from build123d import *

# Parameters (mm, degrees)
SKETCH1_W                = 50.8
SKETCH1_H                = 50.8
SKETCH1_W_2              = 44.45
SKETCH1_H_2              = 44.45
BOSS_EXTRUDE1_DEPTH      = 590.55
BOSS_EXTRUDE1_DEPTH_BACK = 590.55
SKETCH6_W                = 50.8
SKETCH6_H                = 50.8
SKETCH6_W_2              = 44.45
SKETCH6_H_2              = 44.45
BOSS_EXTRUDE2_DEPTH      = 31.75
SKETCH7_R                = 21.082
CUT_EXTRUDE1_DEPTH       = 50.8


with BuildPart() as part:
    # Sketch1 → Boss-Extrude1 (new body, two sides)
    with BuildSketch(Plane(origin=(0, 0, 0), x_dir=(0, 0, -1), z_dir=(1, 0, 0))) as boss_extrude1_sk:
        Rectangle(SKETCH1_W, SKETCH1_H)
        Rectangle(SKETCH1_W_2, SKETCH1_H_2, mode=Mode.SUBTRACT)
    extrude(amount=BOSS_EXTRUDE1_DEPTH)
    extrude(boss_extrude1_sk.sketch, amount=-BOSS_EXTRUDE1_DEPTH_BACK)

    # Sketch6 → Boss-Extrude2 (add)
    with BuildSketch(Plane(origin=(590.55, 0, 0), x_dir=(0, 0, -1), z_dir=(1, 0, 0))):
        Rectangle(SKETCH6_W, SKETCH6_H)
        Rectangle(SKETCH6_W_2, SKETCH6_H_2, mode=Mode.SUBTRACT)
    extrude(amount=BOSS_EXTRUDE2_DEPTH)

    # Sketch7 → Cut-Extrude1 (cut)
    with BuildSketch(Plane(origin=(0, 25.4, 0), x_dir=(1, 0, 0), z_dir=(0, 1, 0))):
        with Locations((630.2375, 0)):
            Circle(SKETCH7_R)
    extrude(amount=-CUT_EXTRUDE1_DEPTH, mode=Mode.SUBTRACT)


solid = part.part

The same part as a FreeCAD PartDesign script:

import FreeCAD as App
import Part
import Sketcher
Q = App.Units.Quantity


def add_polygon(sketch, points):
    """Adds a closed chain of lines whose ends are joined by coincident constraints."""
    first, n = sketch.GeometryCount, len(points)
    for a, b in zip(points, points[1:] + points[:1]):
        sketch.addGeometry(Part.LineSegment(App.Vector(*a, 0), App.Vector(*b, 0)), False)
    for i in range(n):
        sketch.addConstraint(Sketcher.Constraint("Coincident", first + i, 2, first + (i + 1) % n, 1))

doc = App.newDocument("Part")
body = doc.addObject("PartDesign::Body", "Body")

sketch1 = body.newObject("Sketcher::SketchObject", "Sketch")
sketch1.AttachmentSupport = (doc.getObject("YZ_Plane"), [""])
sketch1.MapMode = "FlatFace"
add_polygon(sketch1, [(25, 25), (-25, 25), (-25, -25), (25, -25)])
add_polygon(sketch1, [(-22, -22), (-22, 22), (22, 22), (22, -22)])
sketch1.addConstraint([
    Sketcher.Constraint("Horizontal", 0),
    Sketcher.Constraint("Vertical", 1),
    Sketcher.Constraint("Horizontal", 2),
    Sketcher.Constraint("Vertical", 3),
    Sketcher.Constraint("Vertical", 4),
    Sketcher.Constraint("Horizontal", 5),
    Sketcher.Constraint("Vertical", 6),
    Sketcher.Constraint("Horizontal", 7),
    Sketcher.Constraint("Symmetric", 0, 2, 2, 2, -1, 1),
    Sketcher.Constraint("Symmetric", 4, 2, 6, 2, -1, 1),
    Sketcher.Constraint("Equal", 2, 1),
    Sketcher.Constraint("Equal", 7, 4),
    Sketcher.Constraint("DistanceX", 0, 2, 0, 1, Q("2 in")),
    Sketcher.Constraint("DistanceX", 5, 1, 5, 2, Q("1.75 in")),
])
pad1 = body.newObject("PartDesign::Pad", "Pad")
pad1.Profile = sketch1
pad1.Type = "TwoLengths"
pad1.Length = Q("23.25 in")
pad1.Length2 = Q("23.25 in")

sketch2 = body.newObject("Sketcher::SketchObject", "Sketch001")
sketch2.AttachmentSupport = (doc.getObject("YZ_Plane"), [""])
sketch2.MapMode = "FlatFace"
sketch2.AttachmentOffset = App.Placement(App.Vector(0, 0, 23.25 * 25.4), App.Rotation())
add_polygon(sketch2, [(25, 25), (-25, 25), (-25, -25), (25, -25)])
add_polygon(sketch2, [(-22, -22), (-22, 22), (22, 22), (22, -22)])
sketch2.addConstraint([
    Sketcher.Constraint("Horizontal", 0),
    Sketcher.Constraint("Vertical", 1),
    Sketcher.Constraint("Horizontal", 2),
    Sketcher.Constraint("Vertical", 3),
    Sketcher.Constraint("Vertical", 4),
    Sketcher.Constraint("Horizontal", 5),
    Sketcher.Constraint("Vertical", 6),
    Sketcher.Constraint("Horizontal", 7),
    Sketcher.Constraint("Symmetric", 0, 2, 2, 2, -1, 1),
    Sketcher.Constraint("Symmetric", 4, 2, 6, 2, -1, 1),
    Sketcher.Constraint("Equal", 2, 1),
    Sketcher.Constraint("Equal", 7, 4),
    Sketcher.Constraint("DistanceX", 0, 2, 0, 1, Q("2 in")),
    Sketcher.Constraint("DistanceX", 5, 1, 5, 2, Q("1.75 in")),
])
pad2 = body.newObject("PartDesign::Pad", "Pad001")
pad2.Profile = sketch2
pad2.Length = Q("1.25 in")

sketch3 = body.newObject("Sketcher::SketchObject", "Sketch002")
sketch3.AttachmentSupport = (doc.getObject("XZ_Plane"), [""])
sketch3.MapMode = "FlatFace"
sketch3.AttachmentOffset = App.Placement(App.Vector(0, 0, -1 * 25.4), App.Rotation())
sketch3.addGeometry(Part.Circle(App.Vector(630, 0, 0), App.Vector(0, 0, 1), 21), False)
sketch3.addConstraint([
    Sketcher.Constraint("PointOnObject", 0, 3, -1),
    Sketcher.Constraint("Diameter", 0, Q("1.66 in")),
    Sketcher.Constraint("DistanceX", -1, 1, 0, 3, Q("24.8125 in")),
])
pocket1 = body.newObject("PartDesign::Pocket", "Pocket")
pocket1.Profile = sketch3
pocket1.Length = Q("2 in")
pocket1.Reversed = True

doc.recompute()
